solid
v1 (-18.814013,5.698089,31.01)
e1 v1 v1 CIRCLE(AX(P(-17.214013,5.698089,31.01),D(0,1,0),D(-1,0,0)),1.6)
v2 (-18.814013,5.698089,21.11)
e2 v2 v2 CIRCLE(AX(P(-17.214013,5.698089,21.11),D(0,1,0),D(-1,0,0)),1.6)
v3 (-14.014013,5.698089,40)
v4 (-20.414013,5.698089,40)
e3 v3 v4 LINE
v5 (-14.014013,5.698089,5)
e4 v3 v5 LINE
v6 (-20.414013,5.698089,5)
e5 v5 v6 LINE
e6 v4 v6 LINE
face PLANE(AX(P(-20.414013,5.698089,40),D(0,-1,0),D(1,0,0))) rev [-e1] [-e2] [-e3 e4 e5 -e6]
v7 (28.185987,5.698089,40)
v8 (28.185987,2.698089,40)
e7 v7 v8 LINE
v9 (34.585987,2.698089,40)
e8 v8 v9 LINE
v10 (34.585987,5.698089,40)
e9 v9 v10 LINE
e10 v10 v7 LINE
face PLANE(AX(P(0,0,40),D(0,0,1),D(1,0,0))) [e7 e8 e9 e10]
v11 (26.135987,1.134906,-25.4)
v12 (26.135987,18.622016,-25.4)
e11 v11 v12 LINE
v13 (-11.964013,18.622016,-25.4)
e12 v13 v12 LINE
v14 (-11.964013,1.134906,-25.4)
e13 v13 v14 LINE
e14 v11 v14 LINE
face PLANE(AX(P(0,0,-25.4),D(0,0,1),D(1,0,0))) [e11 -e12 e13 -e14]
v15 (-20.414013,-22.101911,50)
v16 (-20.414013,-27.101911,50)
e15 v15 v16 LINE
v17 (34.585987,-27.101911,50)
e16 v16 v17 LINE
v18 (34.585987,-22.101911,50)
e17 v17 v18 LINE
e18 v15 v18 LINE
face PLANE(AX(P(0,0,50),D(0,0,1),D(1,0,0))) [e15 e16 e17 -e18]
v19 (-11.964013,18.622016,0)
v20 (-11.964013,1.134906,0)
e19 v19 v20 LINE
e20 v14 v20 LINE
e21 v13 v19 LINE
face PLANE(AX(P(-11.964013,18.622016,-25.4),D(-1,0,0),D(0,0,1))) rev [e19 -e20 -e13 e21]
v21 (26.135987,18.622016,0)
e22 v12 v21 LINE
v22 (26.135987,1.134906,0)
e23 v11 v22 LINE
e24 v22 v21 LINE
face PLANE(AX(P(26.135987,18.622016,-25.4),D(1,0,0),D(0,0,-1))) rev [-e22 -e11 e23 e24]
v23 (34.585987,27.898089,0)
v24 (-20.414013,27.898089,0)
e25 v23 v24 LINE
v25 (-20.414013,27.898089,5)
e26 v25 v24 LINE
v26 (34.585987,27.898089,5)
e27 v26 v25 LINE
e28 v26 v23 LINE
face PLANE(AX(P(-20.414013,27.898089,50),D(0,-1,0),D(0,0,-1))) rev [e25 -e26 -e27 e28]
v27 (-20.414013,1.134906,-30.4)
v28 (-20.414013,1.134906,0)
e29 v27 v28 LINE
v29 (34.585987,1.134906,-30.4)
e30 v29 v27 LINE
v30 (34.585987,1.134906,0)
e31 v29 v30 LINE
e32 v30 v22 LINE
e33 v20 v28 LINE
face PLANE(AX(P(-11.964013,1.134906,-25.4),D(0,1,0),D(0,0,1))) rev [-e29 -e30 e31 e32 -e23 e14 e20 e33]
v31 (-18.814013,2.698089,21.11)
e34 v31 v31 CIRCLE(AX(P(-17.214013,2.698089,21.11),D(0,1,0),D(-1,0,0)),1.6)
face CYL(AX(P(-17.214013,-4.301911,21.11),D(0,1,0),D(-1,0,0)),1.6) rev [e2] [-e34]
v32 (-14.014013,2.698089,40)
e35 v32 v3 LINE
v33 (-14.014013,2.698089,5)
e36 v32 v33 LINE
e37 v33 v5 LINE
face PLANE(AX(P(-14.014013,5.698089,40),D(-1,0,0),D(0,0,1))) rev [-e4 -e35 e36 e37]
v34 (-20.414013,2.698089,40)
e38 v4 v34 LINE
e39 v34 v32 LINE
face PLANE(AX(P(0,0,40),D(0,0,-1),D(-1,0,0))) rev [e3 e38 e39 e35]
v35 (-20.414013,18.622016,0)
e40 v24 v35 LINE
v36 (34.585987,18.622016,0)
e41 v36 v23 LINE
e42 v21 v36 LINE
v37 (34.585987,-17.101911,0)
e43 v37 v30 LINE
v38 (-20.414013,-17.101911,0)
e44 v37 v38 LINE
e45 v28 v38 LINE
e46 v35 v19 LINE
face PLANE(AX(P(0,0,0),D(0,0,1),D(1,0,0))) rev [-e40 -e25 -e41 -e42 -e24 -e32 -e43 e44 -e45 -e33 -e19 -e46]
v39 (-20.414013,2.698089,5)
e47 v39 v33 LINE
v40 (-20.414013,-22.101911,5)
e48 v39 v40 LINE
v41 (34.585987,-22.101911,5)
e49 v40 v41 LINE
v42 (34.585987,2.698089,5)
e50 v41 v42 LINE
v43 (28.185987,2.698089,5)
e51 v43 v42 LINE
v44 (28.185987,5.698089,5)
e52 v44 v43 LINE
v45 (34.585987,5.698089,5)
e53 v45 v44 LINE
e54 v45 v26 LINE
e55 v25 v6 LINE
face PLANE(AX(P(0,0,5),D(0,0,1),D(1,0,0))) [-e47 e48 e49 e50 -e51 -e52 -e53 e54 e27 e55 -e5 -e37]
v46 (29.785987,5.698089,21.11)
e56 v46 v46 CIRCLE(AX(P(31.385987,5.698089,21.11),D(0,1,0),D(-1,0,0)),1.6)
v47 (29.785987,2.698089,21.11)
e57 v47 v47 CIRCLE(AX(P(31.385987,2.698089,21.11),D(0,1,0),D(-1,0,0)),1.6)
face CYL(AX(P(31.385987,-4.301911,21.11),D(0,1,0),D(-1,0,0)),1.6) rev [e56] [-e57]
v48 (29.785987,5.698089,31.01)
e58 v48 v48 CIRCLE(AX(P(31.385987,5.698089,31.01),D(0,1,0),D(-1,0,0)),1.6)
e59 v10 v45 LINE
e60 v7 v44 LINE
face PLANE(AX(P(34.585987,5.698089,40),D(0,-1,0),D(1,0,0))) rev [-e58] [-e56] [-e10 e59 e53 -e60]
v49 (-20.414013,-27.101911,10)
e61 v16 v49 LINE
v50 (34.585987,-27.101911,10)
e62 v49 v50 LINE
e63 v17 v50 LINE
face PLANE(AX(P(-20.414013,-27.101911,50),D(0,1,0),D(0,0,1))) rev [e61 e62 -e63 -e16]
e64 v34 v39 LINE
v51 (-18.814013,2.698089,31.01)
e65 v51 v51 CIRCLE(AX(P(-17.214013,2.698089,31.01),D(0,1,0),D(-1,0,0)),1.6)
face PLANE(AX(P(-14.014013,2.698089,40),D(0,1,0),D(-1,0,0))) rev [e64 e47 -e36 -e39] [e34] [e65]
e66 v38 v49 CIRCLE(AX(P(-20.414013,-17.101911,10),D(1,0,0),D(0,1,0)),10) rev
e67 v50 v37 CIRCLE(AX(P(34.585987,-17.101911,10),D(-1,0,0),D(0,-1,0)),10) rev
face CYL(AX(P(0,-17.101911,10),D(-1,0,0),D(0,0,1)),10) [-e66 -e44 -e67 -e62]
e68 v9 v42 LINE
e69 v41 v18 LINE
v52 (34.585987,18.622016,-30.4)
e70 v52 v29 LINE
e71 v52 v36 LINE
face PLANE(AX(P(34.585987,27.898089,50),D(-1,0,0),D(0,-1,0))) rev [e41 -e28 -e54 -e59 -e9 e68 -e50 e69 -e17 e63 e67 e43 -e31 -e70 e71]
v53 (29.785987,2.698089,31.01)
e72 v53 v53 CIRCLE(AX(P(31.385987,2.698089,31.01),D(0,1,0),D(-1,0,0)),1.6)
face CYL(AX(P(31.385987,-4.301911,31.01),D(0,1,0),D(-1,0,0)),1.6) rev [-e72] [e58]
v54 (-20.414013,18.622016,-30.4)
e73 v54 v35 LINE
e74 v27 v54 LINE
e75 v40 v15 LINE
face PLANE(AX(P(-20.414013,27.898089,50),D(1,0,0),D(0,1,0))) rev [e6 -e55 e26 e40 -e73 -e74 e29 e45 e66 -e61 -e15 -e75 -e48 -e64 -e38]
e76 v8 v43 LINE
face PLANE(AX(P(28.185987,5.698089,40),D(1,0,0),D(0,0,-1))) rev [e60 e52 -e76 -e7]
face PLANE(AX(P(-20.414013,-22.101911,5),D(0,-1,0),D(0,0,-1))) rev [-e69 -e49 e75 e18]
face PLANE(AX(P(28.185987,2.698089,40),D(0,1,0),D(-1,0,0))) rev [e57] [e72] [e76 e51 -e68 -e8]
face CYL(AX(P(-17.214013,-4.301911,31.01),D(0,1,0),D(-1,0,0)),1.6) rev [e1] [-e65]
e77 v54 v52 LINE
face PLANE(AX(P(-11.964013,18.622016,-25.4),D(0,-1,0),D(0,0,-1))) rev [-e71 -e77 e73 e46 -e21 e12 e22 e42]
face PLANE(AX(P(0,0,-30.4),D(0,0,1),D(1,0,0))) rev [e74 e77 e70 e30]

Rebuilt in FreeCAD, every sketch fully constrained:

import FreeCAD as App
import Part
import Sketcher

V = App.Vector
Q = App.Units.Quantity


def edges_at(feature, points):
    """Names of the edges that pass closest to the given points."""
    edges = feature.Shape.Edges
    near = lambda p: min(range(len(edges)), key=lambda i: edges[i].distToShape(Part.Vertex(*p))[0])
    return sorted({f"Edge{near(p) + 1}" for p in points})


def add_polygon(sketch, points):
    """Adds a closed chain of lines whose ends are joined by coincident constraints."""
    first, n = sketch.GeometryCount, len(points)
    for a, b in zip(points, points[1:] + points[:1]):
        sketch.addGeometry(Part.LineSegment(App.Vector(*a, 0), App.Vector(*b, 0)), False)
    for i in range(n):
        sketch.addConstraint(Sketcher.Constraint("Coincident", first + i, 2, first + (i + 1) % n, 1))

doc = App.newDocument("Part")
params = doc.addObject("Spreadsheet::Sheet", "Params")
for row, (alias, value) in enumerate([
    ("sketch1_width", "55 mm"),
    ("pad1_length", "50 mm"),
    ("sketch2_width", "55 mm"),
    ("sketch2_height", "50 mm"),
    ("pocket1_length", "45 mm"),
    ("fillet_radius", "10 mm"),
    ("sketch3_height", "3 mm"),
    ("sketch3_width", "6.4 mm"),
    ("pad2_length", "35 mm"),
    ("sketch4_diameter", "3.2 mm"),
    ("pocket2_length", "10 mm"),
    ("sketch5_width", "8.45 mm"),
    ("pad3_length", "25.4 mm"),
    ("sketch6_width", "55 mm"),
    ("pad4_length", "5 mm"),
], start=1):
    params.set(f"A{row}", alias)
    params.set(f"B{row}", "=" + value)
    params.setAlias(f"B{row}", alias)

body = doc.addObject("PartDesign::Body", "Body")

# Sketch on XY plane
sketch1 = body.newObject("Sketcher::SketchObject", "Sketch")
sketch1.AttachmentSupport = (doc.getObject("XY_Plane"), [""])
sketch1.MapMode = "FlatFace"
add_polygon(sketch1, [(-20.414013, 27.898089), (-20.414013, -27.101911), (34.585987, -27.101911), (34.585987, 27.898089)])  # lines 0-3
sketch1.addConstraint(Sketcher.Constraint("Vertical", 0))
sketch1.addConstraint(Sketcher.Constraint("Horizontal", 1))
sketch1.addConstraint(Sketcher.Constraint("Vertical", 2))
sketch1.addConstraint(Sketcher.Constraint("Horizontal", 3))
sketch1.addConstraint(Sketcher.Constraint("Equal", 3, 0))
sketch1.addConstraint(Sketcher.Constraint("DistanceX", 1, 1, 1, 2, Q("55 mm")))
sketch1.addConstraint(Sketcher.Constraint("DistanceY", 0, 2, -1, 1, Q("27.101911 mm")))
sketch1.addConstraint(Sketcher.Constraint("DistanceX", 0, 2, -1, 1, Q("20.414013 mm")))
sketch1.setExpression("Constraints[9]", "Params.sketch1_width")
pad1 = body.newObject("PartDesign::Pad", "Pad")
pad1.Profile = sketch1
pad1.setExpression("Length", "Params.pad1_length")

# Sketch on XY plane
sketch2 = body.newObject("Sketcher::SketchObject", "Sketch001")
sketch2.AttachmentSupport = (doc.getObject("XY_Plane"), [""])
sketch2.MapMode = "FlatFace"
sketch2.AttachmentOffset = App.Placement(V(0, 0, 50), App.Rotation())
add_polygon(sketch2, [(-20.414013, 27.898089), (-20.414013, -22.101911), (34.585987, -22.101911), (34.585987, 27.898089)])  # lines 0-3
sketch2.addConstraint(Sketcher.Constraint("Vertical", 0))
sketch2.addConstraint(Sketcher.Constraint("Horizontal", 1))
sketch2.addConstraint(Sketcher.Constraint("Vertical", 2))
sketch2.addConstraint(Sketcher.Constraint("Horizontal", 3))
sketch2.addConstraint(Sketcher.Constraint("DistanceX", 1, 1, 1, 2, Q("55 mm")))
sketch2.addConstraint(Sketcher.Constraint("DistanceY", 0, 2, 0, 1, Q("50 mm")))
sketch2.addConstraint(Sketcher.Constraint("DistanceY", 0, 2, -1, 1, Q("22.101911 mm")))
sketch2.addConstraint(Sketcher.Constraint("DistanceX", 0, 2, -1, 1, Q("20.414013 mm")))
sketch2.setExpression("Constraints[8]", "Params.sketch2_width")
sketch2.setExpression("Constraints[9]", "Params.sketch2_height")
pocket1 = body.newObject("PartDesign::Pocket", "Pocket")
pocket1.Profile = sketch2
pocket1.setExpression("Length", "Params.pocket1_length")
doc.recompute()

fillet = body.newObject("PartDesign::Fillet", "Fillet")
fillet.Base = (pocket1, edges_at(pocket1, [(7.086, -27.102, 0)]))
fillet.setExpression("Radius", "Params.fillet_radius")

# Sketch on XY plane
sketch3 = body.newObject("Sketcher::SketchObject", "Sketch002")
sketch3.AttachmentSupport = (doc.getObject("XY_Plane"), [""])
sketch3.MapMode = "FlatFace"
sketch3.AttachmentOffset = App.Placement(V(0, 0, 5), App.Rotation())
add_polygon(sketch3, [(-20.414013, 5.698089), (-20.414013, 2.698089), (-14.014013, 2.698089), (-14.014013, 5.698089)])  # lines 0-3
add_polygon(sketch3, [(28.185987, 5.698089), (28.185987, 2.698089), (34.585987, 2.698089), (34.585987, 5.698089)])  # lines 4-7
sketch3.addConstraint(Sketcher.Constraint("Vertical", 0))
sketch3.addConstraint(Sketcher.Constraint("Horizontal", 1))
sketch3.addConstraint(Sketcher.Constraint("Vertical", 2))
sketch3.addConstraint(Sketcher.Constraint("Horizontal", 3))
sketch3.addConstraint(Sketcher.Constraint("Vertical", 4))
sketch3.addConstraint(Sketcher.Constraint("Horizontal", 5))
sketch3.addConstraint(Sketcher.Constraint("Vertical", 6))
sketch3.addConstraint(Sketcher.Constraint("Horizontal", 7))
sketch3.addConstraint(Sketcher.Constraint("Horizontal", 1, 2, 4, 2))
sketch3.addConstraint(Sketcher.Constraint("Horizontal", 3, 2, 6, 2))
sketch3.addConstraint(Sketcher.Constraint("Equal", 3, 5))
sketch3.addConstraint(Sketcher.Constraint("DistanceY", 0, 2, 0, 1, Q("3 mm")))
sketch3.addConstraint(Sketcher.Constraint("DistanceX", 1, 1, 1, 2, Q("6.4 mm")))
sketch3.addConstraint(Sketcher.Constraint("DistanceX", 0, 2, 5, 2, Q("55 mm")))
sketch3.addConstraint(Sketcher.Constraint("DistanceY", -1, 1, 0, 2, Q("2.698089 mm")))
sketch3.addConstraint(Sketcher.Constraint("DistanceX", 0, 2, -1, 1, Q("20.414013 mm")))
sketch3.setExpression("Constraints[19]", "Params.sketch3_height")
sketch3.setExpression("Constraints[20]", "Params.sketch3_width")
pad2 = body.newObject("PartDesign::Pad", "Pad001")
pad2.Profile = sketch3
pad2.setExpression("Length", "Params.pad2_length")

# Sketch on XZ plane
sketch4 = body.newObject("Sketcher::SketchObject", "Sketch003")
sketch4.AttachmentSupport = (doc.getObject("XZ_Plane"), [""])
sketch4.MapMode = "FlatFace"
sketch4.AttachmentOffset = App.Placement(V(0, 0, -5.698089), App.Rotation())
sketch4.addGeometry(Part.Circle(V(-17.214013, 21.11, 0), V(0, 0, 1), 1.6), False)
sketch4.addGeometry(Part.Circle(V(-17.214013, 31.01, 0), V(0, 0, 1), 1.6), False)
sketch4.addGeometry(Part.Circle(V(31.385987, 31.01, 0), V(0, 0, 1), 1.6), False)
sketch4.addGeometry(Part.Circle(V(31.385987, 21.11, 0), V(0, 0, 1), 1.6), False)
sketch4.addConstraint(Sketcher.Constraint("Equal", 0, 1))
sketch4.addConstraint(Sketcher.Constraint("Equal", 1, 2))
sketch4.addConstraint(Sketcher.Constraint("Equal", 2, 3))
sketch4.addConstraint(Sketcher.Constraint("Horizontal", 1, 3, 2, 3))
sketch4.addConstraint(Sketcher.Constraint("Horizontal", 0, 3, 3, 3))
sketch4.addConstraint(Sketcher.Constraint("Vertical", 0, 3, 1, 3))
sketch4.addConstraint(Sketcher.Constraint("Vertical", 2, 3, 3, 3))
sketch4.addConstraint(Sketcher.Constraint("Diameter", 0, Q("3.2 mm")))
sketch4.addConstraint(Sketcher.Constraint("DistanceY", 0, 3, 1, 3, Q("9.9 mm")))
sketch4.addConstraint(Sketcher.Constraint("DistanceX", 1, 3, 2, 3, Q("48.6 mm")))
sketch4.addConstraint(Sketcher.Constraint("DistanceY", -1, 1, 0, 3, Q("21.11 mm")))
sketch4.addConstraint(Sketcher.Constraint("DistanceX", 0, 3, -1, 1, Q("17.214013 mm")))
sketch4.setExpression("Constraints[7]", "Params.sketch4_diameter")
pocket2 = body.newObject("PartDesign::Pocket", "Pocket001")
pocket2.Profile = sketch4
pocket2.setExpression("Length", "Params.pocket2_length")
pocket2.Reversed = True

# Sketch on XY plane
sketch5 = body.newObject("Sketcher::SketchObject", "Sketch004")
sketch5.AttachmentSupport = (doc.getObject("XY_Plane"), [""])
sketch5.MapMode = "FlatFace"
add_polygon(sketch5, [(34.585987, 18.622016), (34.585987, 1.134906), (26.135987, 1.134906), (26.135987, 18.622016)])  # lines 0-3
add_polygon(sketch5, [(-11.964013, 18.622016), (-11.964013, 1.134906), (-20.414013, 1.134906), (-20.414013, 18.622016)])  # lines 4-7
sketch5.addConstraint(Sketcher.Constraint("Vertical", 0))
sketch5.addConstraint(Sketcher.Constraint("Horizontal", 1))
sketch5.addConstraint(Sketcher.Constraint("Vertical", 2))
sketch5.addConstraint(Sketcher.Constraint("Horizontal", 3))
sketch5.addConstraint(Sketcher.Constraint("Vertical", 4))
sketch5.addConstraint(Sketcher.Constraint("Horizontal", 5))
sketch5.addConstraint(Sketcher.Constraint("Vertical", 6))
sketch5.addConstraint(Sketcher.Constraint("Horizontal", 7))
sketch5.addConstraint(Sketcher.Constraint("Horizontal", 1, 2, 4, 2))
sketch5.addConstraint(Sketcher.Constraint("Horizontal", 3, 2, 6, 2))
sketch5.addConstraint(Sketcher.Constraint("Equal", 3, 5))
sketch5.addConstraint(Sketcher.Constraint("DistanceX", 5, 2, 0, 2, Q("55 mm")))
sketch5.addConstraint(Sketcher.Constraint("DistanceX", 1, 2, 1, 1, Q("8.45 mm")))
sketch5.addConstraint(Sketcher.Constraint("DistanceY", 0, 2, 0, 1, Q("17.487111 mm")))
sketch5.addConstraint(Sketcher.Constraint("DistanceX", -1, 1, 0, 2, Q("34.585987 mm")))
sketch5.addConstraint(Sketcher.Constraint("DistanceY", -1, 1, 0, 2, Q("1.134906 mm")))
sketch5.setExpression("Constraints[20]", "Params.sketch5_width")
pad3 = body.newObject("PartDesign::Pad", "Pad002")
pad3.Profile = sketch5
pad3.setExpression("Length", "Params.pad3_length")
pad3.Reversed = True

# Sketch on XY plane
sketch6 = body.newObject("Sketcher::SketchObject", "Sketch005")
sketch6.AttachmentSupport = (doc.getObject("XY_Plane"), [""])
sketch6.MapMode = "FlatFace"
sketch6.AttachmentOffset = App.Placement(V(0, 0, -25.4), App.Rotation())
add_polygon(sketch6, [(34.585987, 18.622016), (34.585987, 1.134906), (-20.414013, 1.134906), (-20.414013, 18.622016)])  # lines 0-3
sketch6.addConstraint(Sketcher.Constraint("Vertical", 0))
sketch6.addConstraint(Sketcher.Constraint("Horizontal", 1))
sketch6.addConstraint(Sketcher.Constraint("Vertical", 2))
sketch6.addConstraint(Sketcher.Constraint("Horizontal", 3))
sketch6.addConstraint(Sketcher.Constraint("DistanceX", 1, 2, 1, 1, Q("55 mm")))
sketch6.addConstraint(Sketcher.Constraint("DistanceY", 0, 2, 0, 1, Q("17.487111 mm")))
sketch6.addConstraint(Sketcher.Constraint("DistanceX", -1, 1, 0, 2, Q("34.585987 mm")))
sketch6.addConstraint(Sketcher.Constraint("DistanceY", -1, 1, 0, 2, Q("1.134906 mm")))
sketch6.setExpression("Constraints[8]", "Params.sketch6_width")
pad4 = body.newObject("PartDesign::Pad", "Pad003")
pad4.Profile = sketch6
pad4.setExpression("Length", "Params.pad4_length")
pad4.Reversed = True

doc.recompute()
